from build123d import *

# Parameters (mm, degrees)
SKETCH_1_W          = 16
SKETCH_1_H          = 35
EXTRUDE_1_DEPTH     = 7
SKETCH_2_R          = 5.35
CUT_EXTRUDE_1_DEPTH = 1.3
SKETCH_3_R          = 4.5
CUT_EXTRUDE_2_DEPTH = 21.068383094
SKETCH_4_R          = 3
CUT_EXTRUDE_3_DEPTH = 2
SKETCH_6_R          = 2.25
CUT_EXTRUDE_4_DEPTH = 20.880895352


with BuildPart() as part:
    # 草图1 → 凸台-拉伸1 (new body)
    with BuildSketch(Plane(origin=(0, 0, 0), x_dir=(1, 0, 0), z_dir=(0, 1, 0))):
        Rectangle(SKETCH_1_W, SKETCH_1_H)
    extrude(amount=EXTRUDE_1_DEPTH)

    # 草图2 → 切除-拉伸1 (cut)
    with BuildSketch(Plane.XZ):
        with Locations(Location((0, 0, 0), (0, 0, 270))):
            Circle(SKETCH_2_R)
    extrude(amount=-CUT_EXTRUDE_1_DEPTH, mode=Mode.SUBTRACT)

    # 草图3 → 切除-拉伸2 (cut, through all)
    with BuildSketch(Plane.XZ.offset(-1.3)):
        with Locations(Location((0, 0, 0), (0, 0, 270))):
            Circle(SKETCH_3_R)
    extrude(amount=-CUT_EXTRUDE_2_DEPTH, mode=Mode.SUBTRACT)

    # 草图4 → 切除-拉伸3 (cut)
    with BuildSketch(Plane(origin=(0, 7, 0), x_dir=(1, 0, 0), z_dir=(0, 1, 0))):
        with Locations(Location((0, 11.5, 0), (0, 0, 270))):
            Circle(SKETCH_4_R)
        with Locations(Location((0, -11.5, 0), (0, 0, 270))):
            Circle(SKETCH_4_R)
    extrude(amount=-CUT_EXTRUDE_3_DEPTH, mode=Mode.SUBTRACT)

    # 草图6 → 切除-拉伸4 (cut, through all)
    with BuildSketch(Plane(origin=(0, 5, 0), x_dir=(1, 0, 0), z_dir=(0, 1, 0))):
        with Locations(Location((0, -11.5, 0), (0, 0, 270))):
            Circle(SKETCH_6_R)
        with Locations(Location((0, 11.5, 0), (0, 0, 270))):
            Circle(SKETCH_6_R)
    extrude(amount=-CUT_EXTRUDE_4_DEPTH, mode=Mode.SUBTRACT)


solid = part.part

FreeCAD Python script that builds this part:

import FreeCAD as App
import Part
import Sketcher

V = App.Vector
Q = App.Units.Quantity


def add_polygon(sketch, points):
    """Adds a closed chain of lines whose ends are joined by coincident constraints."""
    first, n = sketch.GeometryCount, len(points)
    for a, b in zip(points, points[1:] + points[:1]):
        sketch.addGeometry(Part.LineSegment(App.Vector(*a, 0), App.Vector(*b, 0)), False)
    for i in range(n):
        sketch.addConstraint(Sketcher.Constraint("Coincident", first + i, 2, first + (i + 1) % n, 1))

doc = App.newDocument("Part")
body = doc.addObject("PartDesign::Body", "Body")

sketch1 = body.newObject("Sketcher::SketchObject", "Sketch")
sketch1.AttachmentSupport = (doc.getObject("XZ_Plane"), [""])
sketch1.MapMode = "FlatFace"
add_polygon(sketch1, [(-8, -18), (-8, 18), (8, 18), (8, -18)])
sketch1.addConstraint(Sketcher.Constraint("Vertical", 0))
sketch1.addConstraint(Sketcher.Constraint("Horizontal", 1))
sketch1.addConstraint(Sketcher.Constraint("Vertical", 2))
sketch1.addConstraint(Sketcher.Constraint("Horizontal", 3))
sketch1.addConstraint(Sketcher.Constraint("Symmetric", 0, 2, 2, 2, -1, 1))
sketch1.addConstraint(Sketcher.Constraint("DistanceX", 1, 1, 1, 2, Q("16 mm")))
sketch1.addConstraint(Sketcher.Constraint("DistanceY", 0, 1, 0, 2, Q("35 mm")))
pad1 = body.newObject("PartDesign::Pad", "Pad")
pad1.Profile = sketch1
pad1.Length = 7
pad1.Reversed = True

sketch2 = body.newObject("Sketcher::SketchObject", "Sketch001")
sketch2.AttachmentSupport = (doc.getObject("XZ_Plane"), [""])
sketch2.MapMode = "FlatFace"
sketch2.addGeometry(Part.Circle(V(0, 0, 0), V(0, 0, 1), 5), False)
sketch2.addConstraint(Sketcher.Constraint("Coincident", 0, 3, -1, 1))
sketch2.addConstraint(Sketcher.Constraint("Diameter", 0, Q("10.7 mm")))
pocket1 = body.newObject("PartDesign::Pocket", "Pocket")
pocket1.Profile = sketch2
pocket1.Length = 1.3

sketch3 = body.newObject("Sketcher::SketchObject", "Sketch002")
sketch3.AttachmentSupport = (doc.getObject("XZ_Plane"), [""])
sketch3.MapMode = "FlatFace"
sketch3.AttachmentOffset = App.Placement(V(0, 0, -1.3), App.Rotation())
sketch3.addGeometry(Part.Circle(V(0, 0, 0), V(0, 0, 1), 4.5), False)
sketch3.addConstraint(Sketcher.Constraint("Coincident", 0, 3, -1, 1))
sketch3.addConstraint(Sketcher.Constraint("Diameter", 0, Q("9 mm")))
pocket2 = body.newObject("PartDesign::Pocket", "Pocket001")
pocket2.Profile = sketch3
pocket2.Type = "ThroughAll"

sketch4 = body.newObject("Sketcher::SketchObject", "Sketch003")
sketch4.AttachmentSupport = (doc.getObject("XZ_Plane"), [""])
sketch4.MapMode = "FlatFace"
sketch4.AttachmentOffset = App.Placement(V(0, 0, -7), App.Rotation())
sketch4.addGeometry(Part.Circle(V(0, -11.5, 0), V(0, 0, 1), 3), False)
sketch4.addGeometry(Part.Circle(V(0, 11.5, 0), V(0, 0, 1), 3), False)
sketch4.addConstraint(Sketcher.Constraint("Equal", 0, 1))
sketch4.addConstraint(Sketcher.Constraint("Symmetric", 0, 3, 1, 3, -1, 1))
sketch4.addConstraint(Sketcher.Constraint("PointOnObject", 0, 3, -2))
sketch4.addConstraint(Sketcher.Constraint("Diameter", 0, Q("6 mm")))
sketch4.addConstraint(Sketcher.Constraint("DistanceY", 0, 3, 1, 3, Q("23 mm")))
pocket3 = body.newObject("PartDesign::Pocket", "Pocket002")
pocket3.Profile = sketch4
pocket3.Length = 2
pocket3.Reversed = True

sketch5 = body.newObject("Sketcher::SketchObject", "Sketch004")
sketch5.AttachmentSupport = (doc.getObject("XZ_Plane"), [""])
sketch5.MapMode = "FlatFace"
sketch5.AttachmentOffset = App.Placement(V(0, 0, -5), App.Rotation())
sketch5.addGeometry(Part.Circle(V(0, 11.5, 0), V(0, 0, 1), 2.2), False)
sketch5.addGeometry(Part.Circle(V(0, -11.5, 0), V(0, 0, 1), 2.2), False)
sketch5.addConstraint(Sketcher.Constraint("Equal", 0, 1))
sketch5.addConstraint(Sketcher.Constraint("Symmetric", 0, 3, 1, 3, -1, 1))
sketch5.addConstraint(Sketcher.Constraint("PointOnObject", 0, 3, -2))
sketch5.addConstraint(Sketcher.Constraint("Diameter", 0, Q("4.5 mm")))
sketch5.addConstraint(Sketcher.Constraint("DistanceY", 1, 3, 0, 3, Q("23 mm")))
pocket4 = body.newObject("PartDesign::Pocket", "Pocket003")
pocket4.Profile = sketch5
pocket4.Type = "ThroughAll"
pocket4.Reversed = True

doc.recompute()
